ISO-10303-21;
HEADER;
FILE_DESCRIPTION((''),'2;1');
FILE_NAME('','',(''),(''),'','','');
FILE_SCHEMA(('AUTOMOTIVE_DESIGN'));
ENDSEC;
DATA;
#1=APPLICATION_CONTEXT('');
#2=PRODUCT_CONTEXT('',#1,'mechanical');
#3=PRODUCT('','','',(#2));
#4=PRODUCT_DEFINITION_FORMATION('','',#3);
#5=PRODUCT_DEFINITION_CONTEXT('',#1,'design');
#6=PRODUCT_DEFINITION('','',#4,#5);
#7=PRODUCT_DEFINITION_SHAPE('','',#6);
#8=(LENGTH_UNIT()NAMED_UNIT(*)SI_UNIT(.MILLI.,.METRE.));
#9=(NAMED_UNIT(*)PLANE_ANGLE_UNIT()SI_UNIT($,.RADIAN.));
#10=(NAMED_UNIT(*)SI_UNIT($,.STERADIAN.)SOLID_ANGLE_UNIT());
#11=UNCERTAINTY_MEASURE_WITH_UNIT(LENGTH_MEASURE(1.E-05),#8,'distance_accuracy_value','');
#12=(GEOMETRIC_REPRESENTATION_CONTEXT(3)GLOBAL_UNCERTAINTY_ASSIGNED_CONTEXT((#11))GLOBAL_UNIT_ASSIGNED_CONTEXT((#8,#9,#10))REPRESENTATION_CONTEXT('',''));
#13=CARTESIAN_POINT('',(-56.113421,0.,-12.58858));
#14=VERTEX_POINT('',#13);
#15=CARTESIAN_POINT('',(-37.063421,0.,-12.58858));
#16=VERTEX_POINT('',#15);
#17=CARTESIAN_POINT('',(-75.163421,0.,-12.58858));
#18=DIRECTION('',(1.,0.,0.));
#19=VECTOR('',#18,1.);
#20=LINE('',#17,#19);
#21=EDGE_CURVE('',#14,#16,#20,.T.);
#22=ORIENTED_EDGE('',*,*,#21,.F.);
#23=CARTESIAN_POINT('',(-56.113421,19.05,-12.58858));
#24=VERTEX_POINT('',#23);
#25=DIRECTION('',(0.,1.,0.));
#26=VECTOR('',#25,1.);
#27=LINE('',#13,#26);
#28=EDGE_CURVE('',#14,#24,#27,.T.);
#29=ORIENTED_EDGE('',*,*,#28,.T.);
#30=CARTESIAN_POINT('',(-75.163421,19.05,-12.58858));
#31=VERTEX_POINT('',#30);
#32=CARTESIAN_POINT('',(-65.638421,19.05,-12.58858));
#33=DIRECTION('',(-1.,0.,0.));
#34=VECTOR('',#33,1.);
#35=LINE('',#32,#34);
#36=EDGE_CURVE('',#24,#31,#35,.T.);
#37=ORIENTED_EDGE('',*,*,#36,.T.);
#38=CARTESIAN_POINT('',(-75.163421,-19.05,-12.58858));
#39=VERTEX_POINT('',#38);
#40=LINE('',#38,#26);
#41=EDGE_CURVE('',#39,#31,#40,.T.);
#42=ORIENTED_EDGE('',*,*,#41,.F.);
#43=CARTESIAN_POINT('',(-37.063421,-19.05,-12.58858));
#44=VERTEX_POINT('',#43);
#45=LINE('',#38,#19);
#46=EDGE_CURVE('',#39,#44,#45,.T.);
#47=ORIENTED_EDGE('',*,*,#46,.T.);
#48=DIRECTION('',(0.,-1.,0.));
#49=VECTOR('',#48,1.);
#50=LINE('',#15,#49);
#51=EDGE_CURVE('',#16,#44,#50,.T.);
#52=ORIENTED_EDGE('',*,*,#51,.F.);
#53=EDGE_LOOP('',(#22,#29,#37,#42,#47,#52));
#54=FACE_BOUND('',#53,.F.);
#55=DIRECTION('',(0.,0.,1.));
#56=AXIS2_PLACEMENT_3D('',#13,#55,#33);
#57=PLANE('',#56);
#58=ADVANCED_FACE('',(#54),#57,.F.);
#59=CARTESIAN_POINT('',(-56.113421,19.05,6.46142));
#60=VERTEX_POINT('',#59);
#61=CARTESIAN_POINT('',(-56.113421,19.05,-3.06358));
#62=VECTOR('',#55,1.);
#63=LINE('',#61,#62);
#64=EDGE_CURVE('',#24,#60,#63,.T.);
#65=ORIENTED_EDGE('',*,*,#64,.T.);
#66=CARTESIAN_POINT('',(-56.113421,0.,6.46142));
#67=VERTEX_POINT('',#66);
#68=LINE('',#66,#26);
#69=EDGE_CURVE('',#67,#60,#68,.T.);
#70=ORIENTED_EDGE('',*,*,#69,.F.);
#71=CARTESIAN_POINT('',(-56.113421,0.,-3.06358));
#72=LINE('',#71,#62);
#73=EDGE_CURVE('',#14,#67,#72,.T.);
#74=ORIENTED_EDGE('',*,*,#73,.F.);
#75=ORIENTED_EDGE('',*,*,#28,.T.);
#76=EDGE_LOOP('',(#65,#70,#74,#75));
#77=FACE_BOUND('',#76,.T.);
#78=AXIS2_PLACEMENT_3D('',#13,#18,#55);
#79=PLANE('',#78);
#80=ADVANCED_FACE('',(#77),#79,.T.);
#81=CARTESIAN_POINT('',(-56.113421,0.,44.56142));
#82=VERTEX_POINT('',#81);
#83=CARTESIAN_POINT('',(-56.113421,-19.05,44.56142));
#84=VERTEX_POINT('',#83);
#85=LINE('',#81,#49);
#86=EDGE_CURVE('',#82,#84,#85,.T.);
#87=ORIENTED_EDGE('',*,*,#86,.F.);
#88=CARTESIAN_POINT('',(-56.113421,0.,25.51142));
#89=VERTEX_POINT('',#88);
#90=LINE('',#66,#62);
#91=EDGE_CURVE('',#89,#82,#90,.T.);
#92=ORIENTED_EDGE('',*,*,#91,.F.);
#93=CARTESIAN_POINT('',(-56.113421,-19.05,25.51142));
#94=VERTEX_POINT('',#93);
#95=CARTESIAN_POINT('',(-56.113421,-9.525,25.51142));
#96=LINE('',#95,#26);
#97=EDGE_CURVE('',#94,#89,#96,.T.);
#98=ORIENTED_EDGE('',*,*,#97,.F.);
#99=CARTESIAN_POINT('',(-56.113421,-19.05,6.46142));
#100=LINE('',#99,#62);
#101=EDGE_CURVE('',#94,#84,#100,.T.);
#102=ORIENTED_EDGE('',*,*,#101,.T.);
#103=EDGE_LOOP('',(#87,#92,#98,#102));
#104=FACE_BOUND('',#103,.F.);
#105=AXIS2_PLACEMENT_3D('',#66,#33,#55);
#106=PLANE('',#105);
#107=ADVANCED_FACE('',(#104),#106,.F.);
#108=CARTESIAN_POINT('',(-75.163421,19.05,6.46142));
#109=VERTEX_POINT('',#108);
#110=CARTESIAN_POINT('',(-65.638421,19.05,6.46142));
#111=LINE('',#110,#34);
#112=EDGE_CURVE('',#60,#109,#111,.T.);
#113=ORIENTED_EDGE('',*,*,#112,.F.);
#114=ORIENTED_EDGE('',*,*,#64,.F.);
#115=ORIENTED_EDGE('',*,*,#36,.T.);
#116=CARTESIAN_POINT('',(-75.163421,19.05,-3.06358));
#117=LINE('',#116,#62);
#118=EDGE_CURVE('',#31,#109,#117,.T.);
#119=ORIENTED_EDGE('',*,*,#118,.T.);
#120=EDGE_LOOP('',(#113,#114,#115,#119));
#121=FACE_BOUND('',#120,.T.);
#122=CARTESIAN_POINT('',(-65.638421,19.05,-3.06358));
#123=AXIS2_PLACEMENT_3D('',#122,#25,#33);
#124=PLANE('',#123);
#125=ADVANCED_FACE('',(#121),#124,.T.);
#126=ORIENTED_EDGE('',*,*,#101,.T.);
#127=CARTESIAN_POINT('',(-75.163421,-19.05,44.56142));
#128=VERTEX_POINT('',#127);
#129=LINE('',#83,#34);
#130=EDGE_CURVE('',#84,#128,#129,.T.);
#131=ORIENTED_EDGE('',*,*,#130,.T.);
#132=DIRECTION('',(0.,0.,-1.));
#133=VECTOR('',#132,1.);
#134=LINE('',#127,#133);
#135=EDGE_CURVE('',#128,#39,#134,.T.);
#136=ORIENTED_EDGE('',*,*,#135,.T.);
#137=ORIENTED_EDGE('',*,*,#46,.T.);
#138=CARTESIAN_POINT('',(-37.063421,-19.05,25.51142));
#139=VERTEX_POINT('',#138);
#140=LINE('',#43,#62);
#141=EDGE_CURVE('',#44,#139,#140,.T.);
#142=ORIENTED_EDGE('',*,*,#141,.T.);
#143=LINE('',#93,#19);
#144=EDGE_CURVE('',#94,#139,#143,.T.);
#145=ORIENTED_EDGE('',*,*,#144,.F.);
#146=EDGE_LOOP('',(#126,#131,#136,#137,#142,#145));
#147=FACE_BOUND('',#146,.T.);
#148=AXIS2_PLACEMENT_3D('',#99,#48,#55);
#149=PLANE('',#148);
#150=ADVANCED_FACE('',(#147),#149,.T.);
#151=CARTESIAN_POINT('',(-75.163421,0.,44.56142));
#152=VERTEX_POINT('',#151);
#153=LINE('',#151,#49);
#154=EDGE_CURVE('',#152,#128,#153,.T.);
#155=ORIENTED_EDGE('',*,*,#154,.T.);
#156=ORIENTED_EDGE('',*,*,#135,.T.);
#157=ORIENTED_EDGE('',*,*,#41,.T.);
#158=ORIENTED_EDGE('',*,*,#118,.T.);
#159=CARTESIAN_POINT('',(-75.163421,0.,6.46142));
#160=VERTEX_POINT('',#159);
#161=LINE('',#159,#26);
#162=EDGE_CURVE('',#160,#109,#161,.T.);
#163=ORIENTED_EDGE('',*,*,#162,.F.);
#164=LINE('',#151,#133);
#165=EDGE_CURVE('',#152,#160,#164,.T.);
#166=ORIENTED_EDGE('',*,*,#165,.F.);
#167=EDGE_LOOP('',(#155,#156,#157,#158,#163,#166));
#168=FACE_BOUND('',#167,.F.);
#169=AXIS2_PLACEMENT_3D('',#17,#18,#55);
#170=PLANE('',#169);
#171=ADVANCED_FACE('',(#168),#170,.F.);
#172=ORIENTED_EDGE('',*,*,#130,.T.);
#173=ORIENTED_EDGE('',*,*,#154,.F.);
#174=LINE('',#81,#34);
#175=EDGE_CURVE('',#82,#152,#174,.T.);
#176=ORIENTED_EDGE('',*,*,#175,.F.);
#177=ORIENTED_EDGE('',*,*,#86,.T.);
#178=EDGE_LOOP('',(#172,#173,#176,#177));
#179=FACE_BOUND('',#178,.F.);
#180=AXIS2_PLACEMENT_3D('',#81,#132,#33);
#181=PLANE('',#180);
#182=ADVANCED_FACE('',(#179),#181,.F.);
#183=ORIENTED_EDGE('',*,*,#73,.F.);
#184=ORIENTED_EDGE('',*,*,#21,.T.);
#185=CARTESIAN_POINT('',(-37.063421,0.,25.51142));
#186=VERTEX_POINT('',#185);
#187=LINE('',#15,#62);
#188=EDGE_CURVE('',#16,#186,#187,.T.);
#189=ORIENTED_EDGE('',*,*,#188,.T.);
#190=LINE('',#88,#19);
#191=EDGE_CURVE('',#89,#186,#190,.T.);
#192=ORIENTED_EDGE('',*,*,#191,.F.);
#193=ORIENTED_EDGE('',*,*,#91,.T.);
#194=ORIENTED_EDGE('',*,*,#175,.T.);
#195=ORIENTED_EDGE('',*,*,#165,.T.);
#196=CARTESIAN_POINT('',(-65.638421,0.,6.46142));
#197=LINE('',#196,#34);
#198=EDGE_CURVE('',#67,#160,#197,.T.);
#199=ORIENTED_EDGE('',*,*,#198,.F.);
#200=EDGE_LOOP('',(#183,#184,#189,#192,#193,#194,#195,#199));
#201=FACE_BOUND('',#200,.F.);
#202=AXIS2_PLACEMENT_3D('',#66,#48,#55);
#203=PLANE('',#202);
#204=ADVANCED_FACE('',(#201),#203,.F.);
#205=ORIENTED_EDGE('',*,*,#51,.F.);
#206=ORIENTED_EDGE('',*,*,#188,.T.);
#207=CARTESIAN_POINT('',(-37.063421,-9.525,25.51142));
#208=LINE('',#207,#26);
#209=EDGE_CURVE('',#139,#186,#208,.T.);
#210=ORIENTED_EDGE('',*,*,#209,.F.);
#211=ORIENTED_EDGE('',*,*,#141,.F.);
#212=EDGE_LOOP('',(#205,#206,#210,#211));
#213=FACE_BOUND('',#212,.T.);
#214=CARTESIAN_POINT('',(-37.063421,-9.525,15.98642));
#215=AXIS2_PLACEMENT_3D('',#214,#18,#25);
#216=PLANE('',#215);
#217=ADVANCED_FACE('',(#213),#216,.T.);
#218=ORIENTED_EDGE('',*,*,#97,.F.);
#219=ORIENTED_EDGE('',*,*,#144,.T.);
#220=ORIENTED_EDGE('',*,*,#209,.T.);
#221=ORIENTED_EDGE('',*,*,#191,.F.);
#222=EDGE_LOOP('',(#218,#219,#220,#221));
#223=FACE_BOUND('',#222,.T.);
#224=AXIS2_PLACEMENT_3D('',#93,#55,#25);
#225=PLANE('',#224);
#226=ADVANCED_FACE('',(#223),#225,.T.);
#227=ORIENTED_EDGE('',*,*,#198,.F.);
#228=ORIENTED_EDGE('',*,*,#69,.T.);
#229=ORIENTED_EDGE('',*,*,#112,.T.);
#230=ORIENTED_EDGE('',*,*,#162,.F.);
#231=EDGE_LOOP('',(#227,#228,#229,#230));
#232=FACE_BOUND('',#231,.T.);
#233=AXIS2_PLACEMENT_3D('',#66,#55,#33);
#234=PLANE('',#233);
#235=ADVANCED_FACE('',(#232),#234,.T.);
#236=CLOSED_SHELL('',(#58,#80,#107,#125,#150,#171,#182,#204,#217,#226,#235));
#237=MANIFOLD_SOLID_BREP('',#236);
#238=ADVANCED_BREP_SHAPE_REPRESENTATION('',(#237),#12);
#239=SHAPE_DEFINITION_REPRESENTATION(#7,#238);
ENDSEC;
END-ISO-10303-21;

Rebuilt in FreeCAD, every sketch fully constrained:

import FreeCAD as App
import Part
import Sketcher

V = App.Vector
Q = App.Units.Quantity

doc = App.newDocument("Part")
params = doc.addObject("Spreadsheet::Sheet", "Params")
for row, (alias, value) in enumerate([
    ("sketch1_width", "1.5 in"),
    ("pad1_length", "0.75 in"),
    ("sketch2_width", "0.75 in"),
    ("pad2_length", "0.75 in"),
    ("sketch3_width", "0.75 in"),
    ("pad3_length", "0.75 in"),
], start=1):
    params.set(f"A{row}", alias)
    params.set(f"B{row}", "=" + value)
    params.setAlias(f"B{row}", alias)

body = doc.addObject("PartDesign::Body", "Body")

# Sketch on XZ plane
sketch1 = body.newObject("Sketcher::SketchObject", "Sketch")
sketch1.AttachmentSupport = (doc.getObject("XZ_Plane"), [""])
sketch1.MapMode = "FlatFace"
sketch1.addGeometry([
    Part.LineSegment(V(-56, 45, 0), V(-75, 45, 0)),  # 0
    Part.LineSegment(V(-75, 45, 0), V(-75, -13, 0)),  # 1
    Part.LineSegment(V(-75, -13, 0), V(-37, -13, 0)),  # 2
    Part.LineSegment(V(-37, -13, 0), V(-37, 6, 0)),  # 3
    Part.LineSegment(V(-37, 6, 0), V(-56, 6, 0)),  # 4
    Part.LineSegment(V(-56, 6, 0), V(-56, 45, 0)),  # 5
], False)
sketch1.addConstraint([
    Sketcher.Constraint("Coincident", 0, 2, 1, 1),
    Sketcher.Constraint("Coincident", 1, 2, 2, 1),
    Sketcher.Constraint("Coincident", 2, 2, 3, 1),
    Sketcher.Constraint("Coincident", 3, 2, 4, 1),
    Sketcher.Constraint("Coincident", 4, 2, 5, 1),
    Sketcher.Constraint("Coincident", 5, 2, 0, 1),
    Sketcher.Constraint("Horizontal", 0),
    Sketcher.Constraint("Vertical", 1),
    Sketcher.Constraint("Horizontal", 2),
    Sketcher.Constraint("Vertical", 3),
    Sketcher.Constraint("Horizontal", 4),
    Sketcher.Constraint("Vertical", 5),
    Sketcher.Constraint("Equal", 0, 4),
    Sketcher.Constraint("Equal", 4, 3),
    Sketcher.Constraint("Equal", 2, 5),
    Sketcher.Constraint("DistanceX", 2, 1, 2, 2, Q("1.5 in")),
    Sketcher.Constraint("DistanceX", 0, 2, -1, 1, 75.163421),
    Sketcher.Constraint("DistanceY", -1, 1, 0, 2, 44.56142),
])
sketch1.setExpression("Constraints[15]", "Params.sketch1_width")
pad1 = body.newObject("PartDesign::Pad", "Pad")
pad1.Profile = sketch1
pad1.setExpression("Length", "Params.pad1_length")

# Sketch on YZ plane
sketch2 = body.newObject("Sketcher::SketchObject", "Sketch001")
sketch2.AttachmentSupport = (doc.getObject("YZ_Plane"), [""])
sketch2.MapMode = "FlatFace"
sketch2.AttachmentOffset = App.Placement(V(0, 0, -56.113421), App.Rotation())
sketch2.addGeometry([
    Part.LineSegment(V(-19, 26, 0), V(-19, 6, 0)),
    Part.LineSegment(V(-19, 6, 0), V(0, 6, 0)),
    Part.LineSegment(V(0, 6, 0), V(0, 26, 0)),
    Part.LineSegment(V(0, 26, 0), V(-19, 26, 0)),
], False)
sketch2.addConstraint([
    Sketcher.Constraint("Coincident", 0, 2, 1, 1),
    Sketcher.Constraint("Coincident", 1, 2, 2, 1),
    Sketcher.Constraint("Coincident", 2, 2, 3, 1),
    Sketcher.Constraint("Coincident", 3, 2, 0, 1),
    Sketcher.Constraint("Vertical", 0),
    Sketcher.Constraint("Horizontal", 1),
    Sketcher.Constraint("Vertical", 2),
    Sketcher.Constraint("Horizontal", 3),
    Sketcher.Constraint("PointOnObject", 1, 2, -2),
    Sketcher.Constraint("Equal", 3, 0),
    Sketcher.Constraint("DistanceX", 1, 1, 1, 2, Q("0.75 in")),
    Sketcher.Constraint("DistanceY", -1, 1, 0, 2, 6.46142),
])
sketch2.setExpression("Constraints[10]", "Params.sketch2_width")
pad2 = body.newObject("PartDesign::Pad", "Pad001")
pad2.Profile = sketch2
pad2.setExpression("Length", "Params.pad2_length")

# Sketch on XZ plane
sketch3 = body.newObject("Sketcher::SketchObject", "Sketch002")
sketch3.AttachmentSupport = (doc.getObject("XZ_Plane"), [""])
sketch3.MapMode = "FlatFace"
sketch3.addGeometry([
    Part.LineSegment(V(-56, 6, 0), V(-56, -13, 0)),
    Part.LineSegment(V(-56, -13, 0), V(-75, -13, 0)),
    Part.LineSegment(V(-75, -13, 0), V(-75, 6, 0)),
    Part.LineSegment(V(-75, 6, 0), V(-56, 6, 0)),
], False)
sketch3.addConstraint([
    Sketcher.Constraint("Coincident", 0, 2, 1, 1),
    Sketcher.Constraint("Coincident", 1, 2, 2, 1),
    Sketcher.Constraint("Coincident", 2, 2, 3, 1),
    Sketcher.Constraint("Coincident", 3, 2, 0, 1),
    Sketcher.Constraint("Vertical", 0),
    Sketcher.Constraint("Horizontal", 1),
    Sketcher.Constraint("Vertical", 2),
    Sketcher.Constraint("Horizontal", 3),
    Sketcher.Constraint("Equal", 3, 0),
    Sketcher.Constraint("DistanceX", 1, 2, 1, 1, Q("0.75 in")),
    Sketcher.Constraint("DistanceX", 0, 2, -1, 1, 56.113421),
    Sketcher.Constraint("DistanceY", 0, 2, -1, 1, 12.58858),
])
sketch3.setExpression("Constraints[9]", "Params.sketch3_width")
pad3 = body.newObject("PartDesign::Pad", "Pad002")
pad3.Profile = sketch3
pad3.setExpression("Length", "Params.pad3_length")
pad3.Reversed = True

doc.recompute()
